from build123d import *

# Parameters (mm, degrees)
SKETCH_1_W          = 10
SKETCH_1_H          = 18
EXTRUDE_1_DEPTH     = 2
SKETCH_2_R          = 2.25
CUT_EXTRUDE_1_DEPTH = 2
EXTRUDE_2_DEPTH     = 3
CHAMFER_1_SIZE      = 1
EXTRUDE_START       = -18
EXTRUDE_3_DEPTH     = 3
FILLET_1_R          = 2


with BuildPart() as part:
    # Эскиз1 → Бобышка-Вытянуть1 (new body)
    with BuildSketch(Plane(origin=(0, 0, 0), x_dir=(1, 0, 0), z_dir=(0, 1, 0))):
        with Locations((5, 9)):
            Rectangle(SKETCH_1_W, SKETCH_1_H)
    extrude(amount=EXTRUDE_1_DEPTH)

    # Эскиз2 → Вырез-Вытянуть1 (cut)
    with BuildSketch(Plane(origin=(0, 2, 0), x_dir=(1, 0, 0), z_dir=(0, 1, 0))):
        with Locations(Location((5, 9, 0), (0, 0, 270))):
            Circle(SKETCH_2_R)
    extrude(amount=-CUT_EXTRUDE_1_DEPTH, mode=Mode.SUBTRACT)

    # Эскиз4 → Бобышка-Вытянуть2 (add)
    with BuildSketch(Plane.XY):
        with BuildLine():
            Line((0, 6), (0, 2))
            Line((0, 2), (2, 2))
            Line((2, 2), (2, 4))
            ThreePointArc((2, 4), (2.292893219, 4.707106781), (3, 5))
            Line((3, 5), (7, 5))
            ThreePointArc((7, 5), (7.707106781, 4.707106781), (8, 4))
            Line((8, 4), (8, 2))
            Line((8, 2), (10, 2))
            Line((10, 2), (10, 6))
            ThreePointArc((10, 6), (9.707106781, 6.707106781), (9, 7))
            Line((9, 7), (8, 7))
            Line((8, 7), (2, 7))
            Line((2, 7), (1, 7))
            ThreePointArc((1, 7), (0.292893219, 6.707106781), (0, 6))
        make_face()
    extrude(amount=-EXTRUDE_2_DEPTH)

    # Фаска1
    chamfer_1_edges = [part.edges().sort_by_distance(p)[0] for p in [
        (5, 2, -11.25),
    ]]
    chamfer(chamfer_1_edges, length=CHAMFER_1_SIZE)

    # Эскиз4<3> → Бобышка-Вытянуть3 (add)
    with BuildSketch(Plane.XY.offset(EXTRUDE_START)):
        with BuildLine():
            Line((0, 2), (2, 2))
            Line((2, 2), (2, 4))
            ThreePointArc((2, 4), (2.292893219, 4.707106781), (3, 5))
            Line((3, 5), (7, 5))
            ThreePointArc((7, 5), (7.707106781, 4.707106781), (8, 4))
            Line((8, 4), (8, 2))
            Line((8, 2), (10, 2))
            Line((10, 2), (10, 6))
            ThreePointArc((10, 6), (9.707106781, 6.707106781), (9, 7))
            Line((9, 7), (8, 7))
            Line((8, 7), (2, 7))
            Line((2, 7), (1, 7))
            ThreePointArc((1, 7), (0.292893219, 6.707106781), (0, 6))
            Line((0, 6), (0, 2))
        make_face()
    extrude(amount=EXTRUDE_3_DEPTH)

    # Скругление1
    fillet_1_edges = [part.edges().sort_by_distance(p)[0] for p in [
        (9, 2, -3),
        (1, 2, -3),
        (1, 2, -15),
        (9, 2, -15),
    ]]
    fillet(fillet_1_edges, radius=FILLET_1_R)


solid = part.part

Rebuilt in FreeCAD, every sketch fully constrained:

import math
import FreeCAD as App
import Part
import Sketcher


def edges_at(feature, points):
    """Names of the edges that pass closest to the given points."""
    edges = feature.Shape.Edges
    near = lambda p: min(range(len(edges)), key=lambda i: edges[i].distToShape(Part.Vertex(*p))[0])
    return sorted({f"Edge{near(p) + 1}" for p in points})


def add_polygon(sketch, points):
    """Adds a closed chain of lines whose ends are joined by coincident constraints."""
    first, n = sketch.GeometryCount, len(points)
    for a, b in zip(points, points[1:] + points[:1]):
        sketch.addGeometry(Part.LineSegment(App.Vector(*a, 0), App.Vector(*b, 0)), False)
    for i in range(n):
        sketch.addConstraint(Sketcher.Constraint("Coincident", first + i, 2, first + (i + 1) % n, 1))

doc = App.newDocument("Part")
body = doc.addObject("PartDesign::Body", "Body")

# Sketch on XZ plane
sketch1 = body.newObject("Sketcher::SketchObject", "Sketch")
sketch1.AttachmentSupport = (doc.getObject("XZ_Plane"), [""])
sketch1.MapMode = "FlatFace"
add_polygon(sketch1, [(0, -18), (0, 0), (10, 0), (10, -18)])  # lines 0-3
sketch1.addConstraint(Sketcher.Constraint("Vertical", 0))
sketch1.addConstraint(Sketcher.Constraint("Horizontal", 1))
sketch1.addConstraint(Sketcher.Constraint("Vertical", 2))
sketch1.addConstraint(Sketcher.Constraint("Horizontal", 3))
sketch1.addConstraint(Sketcher.Constraint("Coincident", 0, 2, -1, 1))
sketch1.addConstraint(Sketcher.Constraint("DistanceX", 1, 1, 1, 2, 10.0))
sketch1.addConstraint(Sketcher.Constraint("DistanceY", 0, 1, 0, 2, 18.0))
pad1 = body.newObject("PartDesign::Pad", "Pad")
pad1.Profile = sketch1
pad1.Length = 2
pad1.Reversed = True

# Sketch on XZ plane
sketch2 = body.newObject("Sketcher::SketchObject", "Sketch001")
sketch2.AttachmentSupport = (doc.getObject("XZ_Plane"), [""])
sketch2.MapMode = "FlatFace"
sketch2.AttachmentOffset = App.Placement(App.Vector(0, 0, -2), App.Rotation())
sketch2.addGeometry(Part.Circle(App.Vector(5, -9, 0), App.Vector(0, 0, 1), 2.2), False)
sketch2.addConstraint(Sketcher.Constraint("Diameter", 0, 4.5))
sketch2.addConstraint(Sketcher.Constraint("DistanceX", -1, 1, 0, 3, 5.0))
sketch2.addConstraint(Sketcher.Constraint("DistanceY", 0, 3, -1, 1, 9.0))
pocket1 = body.newObject("PartDesign::Pocket", "Pocket")
pocket1.Profile = sketch2
pocket1.Length = 2
pocket1.Reversed = True

# Sketch on XY plane
sketch3 = body.newObject("Sketcher::SketchObject", "Sketch002")
sketch3.AttachmentSupport = (doc.getObject("XY_Plane"), [""])
sketch3.MapMode = "FlatFace"
sketch3.addGeometry(Part.LineSegment(App.Vector(0, 6, 0), App.Vector(0, 2, 0)), False)
sketch3.addGeometry(Part.LineSegment(App.Vector(0, 2, 0), App.Vector(2, 2, 0)), False)
sketch3.addGeometry(Part.LineSegment(App.Vector(2, 2, 0), App.Vector(2, 4, 0)), False)
sketch3.addGeometry(Part.ArcOfCircle(Part.Circle(App.Vector(3, 4, 0), App.Vector(0, 0, 1), 1), math.radians(90), math.radians(180)), False)
sketch3.addGeometry(Part.LineSegment(App.Vector(3, 5, 0), App.Vector(7, 5, 0)), False)
sketch3.addGeometry(Part.ArcOfCircle(Part.Circle(App.Vector(7, 4, 0), App.Vector(0, 0, 1), 1), math.radians(0), math.radians(90)), False)
sketch3.addGeometry(Part.LineSegment(App.Vector(8, 4, 0), App.Vector(8, 2, 0)), False)
sketch3.addGeometry(Part.LineSegment(App.Vector(8, 2, 0), App.Vector(10, 2, 0)), False)
sketch3.addGeometry(Part.LineSegment(App.Vector(10, 2, 0), App.Vector(10, 6, 0)), False)
sketch3.addGeometry(Part.ArcOfCircle(Part.Circle(App.Vector(9, 6, 0), App.Vector(0, 0, 1), 1), math.radians(0), math.radians(90)), False)
sketch3.addGeometry(Part.LineSegment(App.Vector(9, 7, 0), App.Vector(1, 7, 0)), False)
sketch3.addGeometry(Part.ArcOfCircle(Part.Circle(App.Vector(1, 6, 0), App.Vector(0, 0, 1), 1), math.radians(90), math.radians(180)), False)
sketch3.addConstraint(Sketcher.Constraint("Coincident", 0, 2, 1, 1))
sketch3.addConstraint(Sketcher.Constraint("Coincident", 1, 2, 2, 1))
sketch3.addConstraint(Sketcher.Constraint("Tangent", 2, 2, 3, 2))
sketch3.addConstraint(Sketcher.Constraint("Tangent", 3, 1, 4, 1))
sketch3.addConstraint(Sketcher.Constraint("Tangent", 4, 2, 5, 2))
sketch3.addConstraint(Sketcher.Constraint("Tangent", 5, 1, 6, 1))
sketch3.addConstraint(Sketcher.Constraint("Coincident", 6, 2, 7, 1))
sketch3.addConstraint(Sketcher.Constraint("Coincident", 7, 2, 8, 1))
sketch3.addConstraint(Sketcher.Constraint("Tangent", 8, 2, 9, 1))
sketch3.addConstraint(Sketcher.Constraint("Tangent", 9, 2, 10, 1))
sketch3.addConstraint(Sketcher.Constraint("Tangent", 10, 2, 11, 1))
sketch3.addConstraint(Sketcher.Constraint("Tangent", 11, 2, 0, 1))
sketch3.addConstraint(Sketcher.Constraint("Vertical", 0))
sketch3.addConstraint(Sketcher.Constraint("Horizontal", 1))
sketch3.addConstraint(Sketcher.Constraint("Vertical", 2))
sketch3.addConstraint(Sketcher.Constraint("Horizontal", 4))
sketch3.addConstraint(Sketcher.Constraint("Vertical", 6))
sketch3.addConstraint(Sketcher.Constraint("Horizontal", 7))
sketch3.addConstraint(Sketcher.Constraint("Vertical", 8))
sketch3.addConstraint(Sketcher.Constraint("Horizontal", 10))
sketch3.addConstraint(Sketcher.Constraint("Equal", 3, 5))
sketch3.addConstraint(Sketcher.Constraint("Equal", 5, 9))
sketch3.addConstraint(Sketcher.Constraint("Equal", 9, 11))
sketch3.addConstraint(Sketcher.Constraint("PointOnObject", 0, 2, -2))
sketch3.addConstraint(Sketcher.Constraint("Horizontal", 1, 2, 6, 2))
sketch3.addConstraint(Sketcher.Constraint("Equal", 1, 7))
sketch3.addConstraint(Sketcher.Constraint("Equal", 4, 0))
sketch3.addConstraint(Sketcher.Constraint("Equal", 7, 2))
sketch3.addConstraint(Sketcher.Constraint("Radius", 3, 1.0))
sketch3.addConstraint(Sketcher.Constraint("DistanceX", 1, 1, 1, 2, 2.0))
sketch3.addConstraint(Sketcher.Constraint("DistanceX", 4, 1, 4, 2, 4.0))
sketch3.addConstraint(Sketcher.Constraint("DistanceY", -1, 1, 3, 3, 4.0))
pad2 = body.newObject("PartDesign::Pad", "Pad001")
pad2.Profile = sketch3
pad2.Length = 3
pad2.Reversed = True
doc.recompute()

chamfer = body.newObject("PartDesign::Chamfer", "Chamfer")
chamfer.Base = (pad2, edges_at(pad2, [(5, 2, -11.25)]))
chamfer.Size = 1

# Sketch on XY plane
sketch4 = body.newObject("Sketcher::SketchObject", "Sketch003")
sketch4.AttachmentSupport = (doc.getObject("XY_Plane"), [""])
sketch4.MapMode = "FlatFace"
sketch4.AttachmentOffset = App.Placement(App.Vector(0, 0, -18), App.Rotation())
sketch4.addGeometry(Part.LineSegment(App.Vector(0, 2, 0), App.Vector(2, 2, 0)), False)
sketch4.addGeometry(Part.LineSegment(App.Vector(2, 2, 0), App.Vector(2, 4, 0)), False)
sketch4.addGeometry(Part.ArcOfCircle(Part.Circle(App.Vector(3, 4, 0), App.Vector(0, 0, 1), 1), math.radians(90), math.radians(180)), False)
sketch4.addGeometry(Part.LineSegment(App.Vector(3, 5, 0), App.Vector(7, 5, 0)), False)
sketch4.addGeometry(Part.ArcOfCircle(Part.Circle(App.Vector(7, 4, 0), App.Vector(0, 0, 1), 1), math.radians(0), math.radians(90)), False)
sketch4.addGeometry(Part.LineSegment(App.Vector(8, 4, 0), App.Vector(8, 2, 0)), False)
sketch4.addGeometry(Part.LineSegment(App.Vector(8, 2, 0), App.Vector(10, 2, 0)), False)
sketch4.addGeometry(Part.LineSegment(App.Vector(10, 2, 0), App.Vector(10, 6, 0)), False)
sketch4.addGeometry(Part.ArcOfCircle(Part.Circle(App.Vector(9, 6, 0), App.Vector(0, 0, 1), 1), math.radians(0), math.radians(90)), False)
sketch4.addGeometry(Part.LineSegment(App.Vector(9, 7, 0), App.Vector(1, 7, 0)), False)
sketch4.addGeometry(Part.ArcOfCircle(Part.Circle(App.Vector(1, 6, 0), App.Vector(0, 0, 1), 1), math.radians(90), math.radians(180)), False)
sketch4.addGeometry(Part.LineSegment(App.Vector(0, 6, 0), App.Vector(0, 2, 0)), False)
sketch4.addConstraint(Sketcher.Constraint("Coincident", 0, 2, 1, 1))
sketch4.addConstraint(Sketcher.Constraint("Tangent", 1, 2, 2, 2))
sketch4.addConstraint(Sketcher.Constraint("Tangent", 2, 1, 3, 1))
sketch4.addConstraint(Sketcher.Constraint("Tangent", 3, 2, 4, 2))
sketch4.addConstraint(Sketcher.Constraint("Tangent", 4, 1, 5, 1))
sketch4.addConstraint(Sketcher.Constraint("Coincident", 5, 2, 6, 1))
sketch4.addConstraint(Sketcher.Constraint("Coincident", 6, 2, 7, 1))
sketch4.addConstraint(Sketcher.Constraint("Tangent", 7, 2, 8, 1))
sketch4.addConstraint(Sketcher.Constraint("Tangent", 8, 2, 9, 1))
sketch4.addConstraint(Sketcher.Constraint("Tangent", 9, 2, 10, 1))
sketch4.addConstraint(Sketcher.Constraint("Tangent", 10, 2, 11, 1))
sketch4.addConstraint(Sketcher.Constraint("Coincident", 11, 2, 0, 1))
sketch4.addConstraint(Sketcher.Constraint("Horizontal", 0))
sketch4.addConstraint(Sketcher.Constraint("Vertical", 1))
sketch4.addConstraint(Sketcher.Constraint("Horizontal", 3))
sketch4.addConstraint(Sketcher.Constraint("Vertical", 5))
sketch4.addConstraint(Sketcher.Constraint("Horizontal", 6))
sketch4.addConstraint(Sketcher.Constraint("Vertical", 7))
sketch4.addConstraint(Sketcher.Constraint("Horizontal", 9))
sketch4.addConstraint(Sketcher.Constraint("Vertical", 11))
sketch4.addConstraint(Sketcher.Constraint("Equal", 2, 4))
sketch4.addConstraint(Sketcher.Constraint("Equal", 4, 8))
sketch4.addConstraint(Sketcher.Constraint("Equal", 8, 10))
sketch4.addConstraint(Sketcher.Constraint("PointOnObject", 10, 2, -2))
sketch4.addConstraint(Sketcher.Constraint("Horizontal", 0, 2, 5, 2))
sketch4.addConstraint(Sketcher.Constraint("Equal", 0, 6))
sketch4.addConstraint(Sketcher.Constraint("Equal", 6, 1))
sketch4.addConstraint(Sketcher.Constraint("Equal", 3, 7))
sketch4.addConstraint(Sketcher.Constraint("Radius", 2, 1.0))
sketch4.addConstraint(Sketcher.Constraint("DistanceX", 0, 1, 0, 2, 2.0))
sketch4.addConstraint(Sketcher.Constraint("DistanceX", 3, 1, 3, 2, 4.0))
sketch4.addConstraint(Sketcher.Constraint("DistanceY", -1, 1, 2, 3, 4.0))
pad3 = body.newObject("PartDesign::Pad", "Pad002")
pad3.Profile = sketch4
pad3.Length = 3
doc.recompute()

fillet = body.newObject("PartDesign::Fillet", "Fillet")
fillet.Base = (pad3, edges_at(pad3, [
    (9, 2, -3),
    (1, 2, -3),
    (1, 2, -15),
    (9, 2, -15),
]))
fillet.Radius = 2

doc.recompute()
